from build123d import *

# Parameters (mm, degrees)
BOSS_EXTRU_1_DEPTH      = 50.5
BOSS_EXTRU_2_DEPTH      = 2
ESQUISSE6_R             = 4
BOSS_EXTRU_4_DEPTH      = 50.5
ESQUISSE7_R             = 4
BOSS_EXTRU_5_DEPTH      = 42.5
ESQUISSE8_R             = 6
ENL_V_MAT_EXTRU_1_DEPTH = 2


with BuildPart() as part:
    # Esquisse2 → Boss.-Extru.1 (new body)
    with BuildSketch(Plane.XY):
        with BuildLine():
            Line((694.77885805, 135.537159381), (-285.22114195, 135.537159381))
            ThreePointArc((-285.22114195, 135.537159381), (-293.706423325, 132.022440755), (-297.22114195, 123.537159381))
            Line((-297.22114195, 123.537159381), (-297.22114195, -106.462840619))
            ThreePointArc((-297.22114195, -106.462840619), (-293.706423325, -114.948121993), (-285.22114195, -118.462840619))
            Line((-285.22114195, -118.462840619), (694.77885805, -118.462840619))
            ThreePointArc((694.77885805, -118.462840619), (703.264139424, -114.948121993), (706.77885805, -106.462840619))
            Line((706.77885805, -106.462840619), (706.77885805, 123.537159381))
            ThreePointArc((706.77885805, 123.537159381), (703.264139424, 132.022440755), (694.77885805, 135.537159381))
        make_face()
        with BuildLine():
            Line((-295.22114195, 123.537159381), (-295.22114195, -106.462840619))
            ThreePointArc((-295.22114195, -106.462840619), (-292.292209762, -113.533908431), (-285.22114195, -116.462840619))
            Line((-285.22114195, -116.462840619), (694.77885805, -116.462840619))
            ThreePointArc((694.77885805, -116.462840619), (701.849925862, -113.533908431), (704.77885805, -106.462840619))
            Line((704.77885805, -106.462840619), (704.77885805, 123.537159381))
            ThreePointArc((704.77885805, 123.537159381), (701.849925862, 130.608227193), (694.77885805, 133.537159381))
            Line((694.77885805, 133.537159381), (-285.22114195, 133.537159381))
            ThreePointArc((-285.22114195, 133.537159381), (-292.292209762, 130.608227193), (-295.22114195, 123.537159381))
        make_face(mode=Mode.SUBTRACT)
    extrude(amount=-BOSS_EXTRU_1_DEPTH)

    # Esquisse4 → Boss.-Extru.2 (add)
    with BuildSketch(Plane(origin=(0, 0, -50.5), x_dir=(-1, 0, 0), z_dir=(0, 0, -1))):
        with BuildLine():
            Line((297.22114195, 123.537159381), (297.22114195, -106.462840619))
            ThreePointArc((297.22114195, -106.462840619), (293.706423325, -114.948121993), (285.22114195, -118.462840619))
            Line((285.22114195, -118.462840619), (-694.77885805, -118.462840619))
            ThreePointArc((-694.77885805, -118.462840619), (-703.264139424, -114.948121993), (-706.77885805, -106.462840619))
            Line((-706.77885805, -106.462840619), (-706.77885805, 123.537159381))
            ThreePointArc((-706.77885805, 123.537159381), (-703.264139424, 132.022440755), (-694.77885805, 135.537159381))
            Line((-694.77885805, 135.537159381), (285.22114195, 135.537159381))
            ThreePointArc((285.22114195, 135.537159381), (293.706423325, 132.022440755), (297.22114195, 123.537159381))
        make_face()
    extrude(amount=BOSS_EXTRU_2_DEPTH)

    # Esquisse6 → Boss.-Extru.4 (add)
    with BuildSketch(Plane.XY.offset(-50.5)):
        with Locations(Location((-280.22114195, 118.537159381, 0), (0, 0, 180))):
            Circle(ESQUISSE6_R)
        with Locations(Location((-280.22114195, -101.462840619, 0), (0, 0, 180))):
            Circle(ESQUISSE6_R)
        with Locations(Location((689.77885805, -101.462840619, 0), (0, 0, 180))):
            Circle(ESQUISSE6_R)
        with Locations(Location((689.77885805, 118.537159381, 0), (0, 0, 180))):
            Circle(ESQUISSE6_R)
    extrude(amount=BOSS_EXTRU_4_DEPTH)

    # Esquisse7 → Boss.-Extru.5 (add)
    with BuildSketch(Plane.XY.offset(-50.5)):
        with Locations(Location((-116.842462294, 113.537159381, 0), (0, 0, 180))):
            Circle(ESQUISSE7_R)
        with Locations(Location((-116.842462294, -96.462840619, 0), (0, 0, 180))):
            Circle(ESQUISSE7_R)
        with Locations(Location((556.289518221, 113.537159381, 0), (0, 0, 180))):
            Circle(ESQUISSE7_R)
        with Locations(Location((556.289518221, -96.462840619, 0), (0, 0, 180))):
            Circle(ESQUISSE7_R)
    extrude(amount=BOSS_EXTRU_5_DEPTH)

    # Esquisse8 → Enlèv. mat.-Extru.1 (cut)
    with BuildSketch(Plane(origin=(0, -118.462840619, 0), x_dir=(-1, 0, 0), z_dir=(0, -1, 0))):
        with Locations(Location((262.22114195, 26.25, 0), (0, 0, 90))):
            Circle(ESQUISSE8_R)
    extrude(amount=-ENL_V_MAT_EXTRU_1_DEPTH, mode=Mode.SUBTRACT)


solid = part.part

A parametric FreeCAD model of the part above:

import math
import FreeCAD as App
import Part
import Sketcher

V = App.Vector

doc = App.newDocument("Part")
params = doc.addObject("Spreadsheet::Sheet", "Params")
for row, (alias, value) in enumerate([
    ("sketch1_radius", "12 mm"),
    ("sketch1_radius2", "10 mm"),
    ("sketch1_width", "980 mm"),
    ("sketch1_height", "230 mm"),
    ("pad1_length", "50.5 mm"),
    ("sketch2_radius", "12 mm"),
    ("sketch2_width", "980 mm"),
    ("sketch2_height", "230 mm"),
    ("pad2_length", "2 mm"),
    ("sketch3_diameter", "8 mm"),
    ("pad3_length", "50.5 mm"),
    ("sketch4_diameter", "8 mm"),
    ("pad4_length", "42.5 mm"),
    ("sketch5_diameter", "12 mm"),
    ("pocket1_length", "2 mm"),
], start=1):
    params.set(f"A{row}", alias)
    params.set(f"B{row}", "=" + value)
    params.setAlias(f"B{row}", alias)

body = doc.addObject("PartDesign::Body", "Body")

sketch1 = body.newObject("Sketcher::SketchObject", "Sketch")
sketch1.AttachmentSupport = (doc.getObject("XY_Plane"), [""])
sketch1.MapMode = "FlatFace"
sketch1.addGeometry([
    Part.LineSegment(V(694.778858, 135.537159, 0), V(-285.221142, 135.537159, 0)),
    Part.ArcOfCircle(Part.Circle(V(-285.221142, 123.537159, 0), V(0, 0, 1), 12), math.radians(90), math.radians(180)),
    Part.LineSegment(V(-297.221142, 123.537159, 0), V(-297.221142, -106.462841, 0)),
    Part.ArcOfCircle(Part.Circle(V(-285.221142, -106.462841, 0), V(0, 0, 1), 12), math.radians(180), math.radians(270)),
    Part.LineSegment(V(-285.221142, -118.462841, 0), V(694.778858, -118.462841, 0)),
    Part.ArcOfCircle(Part.Circle(V(694.778858, -106.462841, 0), V(0, 0, 1), 12), math.radians(-90), math.radians(0)),
    Part.LineSegment(V(706.778858, -106.462841, 0), V(706.778858, 123.537159, 0)),
    Part.ArcOfCircle(Part.Circle(V(694.778858, 123.537159, 0), V(0, 0, 1), 12), math.radians(0), math.radians(90)),
    Part.LineSegment(V(-295.221142, -106.462841, 0), V(-295.221142, 123.537159, 0)),
    Part.ArcOfCircle(Part.Circle(V(-285.221142, 123.537159, 0), V(0, 0, 1), 10), math.radians(90), math.radians(180)),
    Part.LineSegment(V(-285.221142, 133.537159, 0), V(694.778858, 133.537159, 0)),
    Part.ArcOfCircle(Part.Circle(V(694.778858, 123.537159, 0), V(0, 0, 1), 10), math.radians(0), math.radians(90)),
    Part.LineSegment(V(704.778858, 123.537159, 0), V(704.778858, -106.462841, 0)),
    Part.ArcOfCircle(Part.Circle(V(694.778858, -106.462841, 0), V(0, 0, 1), 10), math.radians(-90), math.radians(0)),
    Part.LineSegment(V(694.778858, -116.462841, 0), V(-285.221142, -116.462841, 0)),
    Part.ArcOfCircle(Part.Circle(V(-285.221142, -106.462841, 0), V(0, 0, 1), 10), math.radians(180), math.radians(270)),
], False)
sketch1.addConstraint([
    Sketcher.Constraint("Tangent", 0, 2, 1, 1),
    Sketcher.Constraint("Tangent", 1, 2, 2, 1),
    Sketcher.Constraint("Tangent", 2, 2, 3, 1),
    Sketcher.Constraint("Tangent", 3, 2, 4, 1),
    Sketcher.Constraint("Tangent", 4, 2, 5, 1),
    Sketcher.Constraint("Tangent", 5, 2, 6, 1),
    Sketcher.Constraint("Tangent", 6, 2, 7, 1),
    Sketcher.Constraint("Tangent", 7, 2, 0, 1),
    Sketcher.Constraint("Tangent", 8, 2, 9, 2),
    Sketcher.Constraint("Tangent", 9, 1, 10, 1),
    Sketcher.Constraint("Tangent", 10, 2, 11, 2),
    Sketcher.Constraint("Tangent", 11, 1, 12, 1),
    Sketcher.Constraint("Tangent", 12, 2, 13, 2),
    Sketcher.Constraint("Tangent", 13, 1, 14, 1),
    Sketcher.Constraint("Tangent", 14, 2, 15, 2),
    Sketcher.Constraint("Tangent", 15, 1, 8, 1),
    Sketcher.Constraint("Horizontal", 0),
    Sketcher.Constraint("Vertical", 2),
    Sketcher.Constraint("Horizontal", 4),
    Sketcher.Constraint("Vertical", 6),
    Sketcher.Constraint("Vertical", 8),
    Sketcher.Constraint("Horizontal", 10),
    Sketcher.Constraint("Vertical", 12),
    Sketcher.Constraint("Horizontal", 14),
    Sketcher.Constraint("Coincident", 9, 3, 1, 3),
    Sketcher.Constraint("Coincident", 11, 3, 7, 3),
    Sketcher.Constraint("Coincident", 13, 3, 5, 3),
    Sketcher.Constraint("Equal", 1, 3),
    Sketcher.Constraint("Equal", 3, 5),
    Sketcher.Constraint("Equal", 5, 7),
    Sketcher.Constraint("Equal", 13, 15),
    Sketcher.Constraint("Radius", 1, 12.0),
    Sketcher.Constraint("Radius", 9, 10.0),
    Sketcher.Constraint("DistanceX", 0, 2, 0, 1, 980.0),
    Sketcher.Constraint("DistanceY", 2, 2, 2, 1, 230.0),
    Sketcher.Constraint("DistanceX", 1, 3, -1, 1, 285.221142),
    Sketcher.Constraint("DistanceY", -1, 1, 1, 3, 123.537159),
])
sketch1.setExpression("Constraints[31]", "Params.sketch1_radius")
sketch1.setExpression("Constraints[32]", "Params.sketch1_radius2")
sketch1.setExpression("Constraints[33]", "Params.sketch1_width")
sketch1.setExpression("Constraints[34]", "Params.sketch1_height")
pad1 = body.newObject("PartDesign::Pad", "Pad")
pad1.Profile = sketch1
pad1.setExpression("Length", "Params.pad1_length")
pad1.Reversed = True

sketch2 = body.newObject("Sketcher::SketchObject", "Sketch001")
sketch2.AttachmentSupport = (doc.getObject("XY_Plane"), [""])
sketch2.MapMode = "FlatFace"
sketch2.AttachmentOffset = App.Placement(V(0, 0, -50.5), App.Rotation())
sketch2.addGeometry([
    Part.LineSegment(V(-297.221142, -106.462841, 0), V(-297.221142, 123.537159, 0)),
    Part.ArcOfCircle(Part.Circle(V(-285.221142, 123.537159, 0), V(0, 0, 1), 12), math.radians(90), math.radians(180)),
    Part.LineSegment(V(-285.221142, 135.537159, 0), V(694.778858, 135.537159, 0)),
    Part.ArcOfCircle(Part.Circle(V(694.778858, 123.537159, 0), V(0, 0, 1), 12), math.radians(0), math.radians(90)),
    Part.LineSegment(V(706.778858, 123.537159, 0), V(706.778858, -106.462841, 0)),
    Part.ArcOfCircle(Part.Circle(V(694.778858, -106.462841, 0), V(0, 0, 1), 12), math.radians(-90), math.radians(0)),
    Part.LineSegment(V(694.778858, -118.462841, 0), V(-285.221142, -118.462841, 0)),
    Part.ArcOfCircle(Part.Circle(V(-285.221142, -106.462841, 0), V(0, 0, 1), 12), math.radians(180), math.radians(270)),
], False)
sketch2.addConstraint([
    Sketcher.Constraint("Tangent", 0, 2, 1, 2),
    Sketcher.Constraint("Tangent", 1, 1, 2, 1),
    Sketcher.Constraint("Tangent", 2, 2, 3, 2),
    Sketcher.Constraint("Tangent", 3, 1, 4, 1),
    Sketcher.Constraint("Tangent", 4, 2, 5, 2),
    Sketcher.Constraint("Tangent", 5, 1, 6, 1),
    Sketcher.Constraint("Tangent", 6, 2, 7, 2),
    Sketcher.Constraint("Tangent", 7, 1, 0, 1),
    Sketcher.Constraint("Vertical", 0),
    Sketcher.Constraint("Horizontal", 2),
    Sketcher.Constraint("Vertical", 4),
    Sketcher.Constraint("Horizontal", 6),
    Sketcher.Constraint("Equal", 1, 3),
    Sketcher.Constraint("Equal", 3, 5),
    Sketcher.Constraint("Equal", 5, 7),
    Sketcher.Constraint("Radius", 1, 12.0),
    Sketcher.Constraint("DistanceX", 2, 1, 2, 2, 980.0),
    Sketcher.Constraint("DistanceY", 0, 1, 0, 2, 230.0),
    Sketcher.Constraint("DistanceX", 1, 3, -1, 1, 285.221142),
    Sketcher.Constraint("DistanceY", -1, 1, 1, 3, 123.537159),
])
sketch2.setExpression("Constraints[15]", "Params.sketch2_radius")
sketch2.setExpression("Constraints[16]", "Params.sketch2_width")
sketch2.setExpression("Constraints[17]", "Params.sketch2_height")
pad2 = body.newObject("PartDesign::Pad", "Pad001")
pad2.Profile = sketch2
pad2.setExpression("Length", "Params.pad2_length")
pad2.Reversed = True

sketch3 = body.newObject("Sketcher::SketchObject", "Sketch002")
sketch3.AttachmentSupport = (doc.getObject("XY_Plane"), [""])
sketch3.MapMode = "FlatFace"
sketch3.AttachmentOffset = App.Placement(V(0, 0, -50.5), App.Rotation())
sketch3.addGeometry([
    Part.Circle(V(-280.221142, 118.537159, 0), V(0, 0, 1), 4),
    Part.Circle(V(-280.221142, -101.462841, 0), V(0, 0, 1), 4),
    Part.Circle(V(689.778858, -101.462841, 0), V(0, 0, 1), 4),
    Part.Circle(V(689.778858, 118.537159, 0), V(0, 0, 1), 4),
], False)
sketch3.addConstraint([
    Sketcher.Constraint("Equal", 0, 1),
    Sketcher.Constraint("Equal", 1, 2),
    Sketcher.Constraint("Equal", 2, 3),
    Sketcher.Constraint("Horizontal", 1, 3, 2, 3),
    Sketcher.Constraint("Horizontal", 0, 3, 3, 3),
    Sketcher.Constraint("Vertical", 0, 3, 1, 3),
    Sketcher.Constraint("Vertical", 2, 3, 3, 3),
    Sketcher.Constraint("Diameter", 0, 8.0),
    Sketcher.Constraint("DistanceY", 1, 3, 0, 3, 220.0),
    Sketcher.Constraint("DistanceX", 1, 3, 2, 3, 970.0),
    Sketcher.Constraint("DistanceX", 0, 3, -1, 1, 280.221142),
    Sketcher.Constraint("DistanceY", -1, 1, 0, 3, 118.537159),
])
sketch3.setExpression("Constraints[7]", "Params.sketch3_diameter")
pad3 = body.newObject("PartDesign::Pad", "Pad002")
pad3.Profile = sketch3
pad3.setExpression("Length", "Params.pad3_length")

sketch4 = body.newObject("Sketcher::SketchObject", "Sketch003")
sketch4.AttachmentSupport = (doc.getObject("XY_Plane"), [""])
sketch4.MapMode = "FlatFace"
sketch4.AttachmentOffset = App.Placement(V(0, 0, -50.5), App.Rotation())
sketch4.addGeometry([
    Part.Circle(V(-116.842462, 113.537159, 0), V(0, 0, 1), 4),
    Part.Circle(V(-116.842462, -96.462841, 0), V(0, 0, 1), 4),
    Part.Circle(V(556.289518, 113.537159, 0), V(0, 0, 1), 4),
    Part.Circle(V(556.289518, -96.462841, 0), V(0, 0, 1), 4),
], False)
sketch4.addConstraint([
    Sketcher.Constraint("Equal", 0, 1),
    Sketcher.Constraint("Equal", 1, 2),
    Sketcher.Constraint("Equal", 2, 3),
    Sketcher.Constraint("Horizontal", 0, 3, 2, 3),
    Sketcher.Constraint("Horizontal", 1, 3, 3, 3),
    Sketcher.Constraint("Vertical", 0, 3, 1, 3),
    Sketcher.Constraint("Vertical", 2, 3, 3, 3),
    Sketcher.Constraint("Diameter", 0, 8.0),
    Sketcher.Constraint("DistanceY", 1, 3, 0, 3, 210.0),
    Sketcher.Constraint("DistanceY", -1, 1, 0, 3, 113.537159),
    Sketcher.Constraint("DistanceX", -1, 1, 2, 3, 556.289518),
    Sketcher.Constraint("DistanceX", 0, 3, 2, 3, 673.131981),
])
sketch4.setExpression("Constraints[7]", "Params.sketch4_diameter")
pad4 = body.newObject("PartDesign::Pad", "Pad003")
pad4.Profile = sketch4
pad4.setExpression("Length", "Params.pad4_length")

sketch5 = body.newObject("Sketcher::SketchObject", "Sketch004")
sketch5.AttachmentSupport = (doc.getObject("XZ_Plane"), [""])
sketch5.MapMode = "FlatFace"
sketch5.AttachmentOffset = App.Placement(V(0, 0, 118.462841), App.Rotation())
sketch5.addGeometry(Part.Circle(V(-262.221142, -26.25, 0), V(0, 0, 1), 6), False)
sketch5.addConstraint([
    Sketcher.Constraint("Diameter", 0, 12.0),
    Sketcher.Constraint("DistanceY", 0, 3, -1, 1, 26.25),
    Sketcher.Constraint("DistanceX", 0, 3, -1, 1, 262.221142),
])
sketch5.setExpression("Constraints[0]", "Params.sketch5_diameter")
pocket1 = body.newObject("PartDesign::Pocket", "Pocket")
pocket1.Profile = sketch5
pocket1.setExpression("Length", "Params.pocket1_length")

doc.recompute()
